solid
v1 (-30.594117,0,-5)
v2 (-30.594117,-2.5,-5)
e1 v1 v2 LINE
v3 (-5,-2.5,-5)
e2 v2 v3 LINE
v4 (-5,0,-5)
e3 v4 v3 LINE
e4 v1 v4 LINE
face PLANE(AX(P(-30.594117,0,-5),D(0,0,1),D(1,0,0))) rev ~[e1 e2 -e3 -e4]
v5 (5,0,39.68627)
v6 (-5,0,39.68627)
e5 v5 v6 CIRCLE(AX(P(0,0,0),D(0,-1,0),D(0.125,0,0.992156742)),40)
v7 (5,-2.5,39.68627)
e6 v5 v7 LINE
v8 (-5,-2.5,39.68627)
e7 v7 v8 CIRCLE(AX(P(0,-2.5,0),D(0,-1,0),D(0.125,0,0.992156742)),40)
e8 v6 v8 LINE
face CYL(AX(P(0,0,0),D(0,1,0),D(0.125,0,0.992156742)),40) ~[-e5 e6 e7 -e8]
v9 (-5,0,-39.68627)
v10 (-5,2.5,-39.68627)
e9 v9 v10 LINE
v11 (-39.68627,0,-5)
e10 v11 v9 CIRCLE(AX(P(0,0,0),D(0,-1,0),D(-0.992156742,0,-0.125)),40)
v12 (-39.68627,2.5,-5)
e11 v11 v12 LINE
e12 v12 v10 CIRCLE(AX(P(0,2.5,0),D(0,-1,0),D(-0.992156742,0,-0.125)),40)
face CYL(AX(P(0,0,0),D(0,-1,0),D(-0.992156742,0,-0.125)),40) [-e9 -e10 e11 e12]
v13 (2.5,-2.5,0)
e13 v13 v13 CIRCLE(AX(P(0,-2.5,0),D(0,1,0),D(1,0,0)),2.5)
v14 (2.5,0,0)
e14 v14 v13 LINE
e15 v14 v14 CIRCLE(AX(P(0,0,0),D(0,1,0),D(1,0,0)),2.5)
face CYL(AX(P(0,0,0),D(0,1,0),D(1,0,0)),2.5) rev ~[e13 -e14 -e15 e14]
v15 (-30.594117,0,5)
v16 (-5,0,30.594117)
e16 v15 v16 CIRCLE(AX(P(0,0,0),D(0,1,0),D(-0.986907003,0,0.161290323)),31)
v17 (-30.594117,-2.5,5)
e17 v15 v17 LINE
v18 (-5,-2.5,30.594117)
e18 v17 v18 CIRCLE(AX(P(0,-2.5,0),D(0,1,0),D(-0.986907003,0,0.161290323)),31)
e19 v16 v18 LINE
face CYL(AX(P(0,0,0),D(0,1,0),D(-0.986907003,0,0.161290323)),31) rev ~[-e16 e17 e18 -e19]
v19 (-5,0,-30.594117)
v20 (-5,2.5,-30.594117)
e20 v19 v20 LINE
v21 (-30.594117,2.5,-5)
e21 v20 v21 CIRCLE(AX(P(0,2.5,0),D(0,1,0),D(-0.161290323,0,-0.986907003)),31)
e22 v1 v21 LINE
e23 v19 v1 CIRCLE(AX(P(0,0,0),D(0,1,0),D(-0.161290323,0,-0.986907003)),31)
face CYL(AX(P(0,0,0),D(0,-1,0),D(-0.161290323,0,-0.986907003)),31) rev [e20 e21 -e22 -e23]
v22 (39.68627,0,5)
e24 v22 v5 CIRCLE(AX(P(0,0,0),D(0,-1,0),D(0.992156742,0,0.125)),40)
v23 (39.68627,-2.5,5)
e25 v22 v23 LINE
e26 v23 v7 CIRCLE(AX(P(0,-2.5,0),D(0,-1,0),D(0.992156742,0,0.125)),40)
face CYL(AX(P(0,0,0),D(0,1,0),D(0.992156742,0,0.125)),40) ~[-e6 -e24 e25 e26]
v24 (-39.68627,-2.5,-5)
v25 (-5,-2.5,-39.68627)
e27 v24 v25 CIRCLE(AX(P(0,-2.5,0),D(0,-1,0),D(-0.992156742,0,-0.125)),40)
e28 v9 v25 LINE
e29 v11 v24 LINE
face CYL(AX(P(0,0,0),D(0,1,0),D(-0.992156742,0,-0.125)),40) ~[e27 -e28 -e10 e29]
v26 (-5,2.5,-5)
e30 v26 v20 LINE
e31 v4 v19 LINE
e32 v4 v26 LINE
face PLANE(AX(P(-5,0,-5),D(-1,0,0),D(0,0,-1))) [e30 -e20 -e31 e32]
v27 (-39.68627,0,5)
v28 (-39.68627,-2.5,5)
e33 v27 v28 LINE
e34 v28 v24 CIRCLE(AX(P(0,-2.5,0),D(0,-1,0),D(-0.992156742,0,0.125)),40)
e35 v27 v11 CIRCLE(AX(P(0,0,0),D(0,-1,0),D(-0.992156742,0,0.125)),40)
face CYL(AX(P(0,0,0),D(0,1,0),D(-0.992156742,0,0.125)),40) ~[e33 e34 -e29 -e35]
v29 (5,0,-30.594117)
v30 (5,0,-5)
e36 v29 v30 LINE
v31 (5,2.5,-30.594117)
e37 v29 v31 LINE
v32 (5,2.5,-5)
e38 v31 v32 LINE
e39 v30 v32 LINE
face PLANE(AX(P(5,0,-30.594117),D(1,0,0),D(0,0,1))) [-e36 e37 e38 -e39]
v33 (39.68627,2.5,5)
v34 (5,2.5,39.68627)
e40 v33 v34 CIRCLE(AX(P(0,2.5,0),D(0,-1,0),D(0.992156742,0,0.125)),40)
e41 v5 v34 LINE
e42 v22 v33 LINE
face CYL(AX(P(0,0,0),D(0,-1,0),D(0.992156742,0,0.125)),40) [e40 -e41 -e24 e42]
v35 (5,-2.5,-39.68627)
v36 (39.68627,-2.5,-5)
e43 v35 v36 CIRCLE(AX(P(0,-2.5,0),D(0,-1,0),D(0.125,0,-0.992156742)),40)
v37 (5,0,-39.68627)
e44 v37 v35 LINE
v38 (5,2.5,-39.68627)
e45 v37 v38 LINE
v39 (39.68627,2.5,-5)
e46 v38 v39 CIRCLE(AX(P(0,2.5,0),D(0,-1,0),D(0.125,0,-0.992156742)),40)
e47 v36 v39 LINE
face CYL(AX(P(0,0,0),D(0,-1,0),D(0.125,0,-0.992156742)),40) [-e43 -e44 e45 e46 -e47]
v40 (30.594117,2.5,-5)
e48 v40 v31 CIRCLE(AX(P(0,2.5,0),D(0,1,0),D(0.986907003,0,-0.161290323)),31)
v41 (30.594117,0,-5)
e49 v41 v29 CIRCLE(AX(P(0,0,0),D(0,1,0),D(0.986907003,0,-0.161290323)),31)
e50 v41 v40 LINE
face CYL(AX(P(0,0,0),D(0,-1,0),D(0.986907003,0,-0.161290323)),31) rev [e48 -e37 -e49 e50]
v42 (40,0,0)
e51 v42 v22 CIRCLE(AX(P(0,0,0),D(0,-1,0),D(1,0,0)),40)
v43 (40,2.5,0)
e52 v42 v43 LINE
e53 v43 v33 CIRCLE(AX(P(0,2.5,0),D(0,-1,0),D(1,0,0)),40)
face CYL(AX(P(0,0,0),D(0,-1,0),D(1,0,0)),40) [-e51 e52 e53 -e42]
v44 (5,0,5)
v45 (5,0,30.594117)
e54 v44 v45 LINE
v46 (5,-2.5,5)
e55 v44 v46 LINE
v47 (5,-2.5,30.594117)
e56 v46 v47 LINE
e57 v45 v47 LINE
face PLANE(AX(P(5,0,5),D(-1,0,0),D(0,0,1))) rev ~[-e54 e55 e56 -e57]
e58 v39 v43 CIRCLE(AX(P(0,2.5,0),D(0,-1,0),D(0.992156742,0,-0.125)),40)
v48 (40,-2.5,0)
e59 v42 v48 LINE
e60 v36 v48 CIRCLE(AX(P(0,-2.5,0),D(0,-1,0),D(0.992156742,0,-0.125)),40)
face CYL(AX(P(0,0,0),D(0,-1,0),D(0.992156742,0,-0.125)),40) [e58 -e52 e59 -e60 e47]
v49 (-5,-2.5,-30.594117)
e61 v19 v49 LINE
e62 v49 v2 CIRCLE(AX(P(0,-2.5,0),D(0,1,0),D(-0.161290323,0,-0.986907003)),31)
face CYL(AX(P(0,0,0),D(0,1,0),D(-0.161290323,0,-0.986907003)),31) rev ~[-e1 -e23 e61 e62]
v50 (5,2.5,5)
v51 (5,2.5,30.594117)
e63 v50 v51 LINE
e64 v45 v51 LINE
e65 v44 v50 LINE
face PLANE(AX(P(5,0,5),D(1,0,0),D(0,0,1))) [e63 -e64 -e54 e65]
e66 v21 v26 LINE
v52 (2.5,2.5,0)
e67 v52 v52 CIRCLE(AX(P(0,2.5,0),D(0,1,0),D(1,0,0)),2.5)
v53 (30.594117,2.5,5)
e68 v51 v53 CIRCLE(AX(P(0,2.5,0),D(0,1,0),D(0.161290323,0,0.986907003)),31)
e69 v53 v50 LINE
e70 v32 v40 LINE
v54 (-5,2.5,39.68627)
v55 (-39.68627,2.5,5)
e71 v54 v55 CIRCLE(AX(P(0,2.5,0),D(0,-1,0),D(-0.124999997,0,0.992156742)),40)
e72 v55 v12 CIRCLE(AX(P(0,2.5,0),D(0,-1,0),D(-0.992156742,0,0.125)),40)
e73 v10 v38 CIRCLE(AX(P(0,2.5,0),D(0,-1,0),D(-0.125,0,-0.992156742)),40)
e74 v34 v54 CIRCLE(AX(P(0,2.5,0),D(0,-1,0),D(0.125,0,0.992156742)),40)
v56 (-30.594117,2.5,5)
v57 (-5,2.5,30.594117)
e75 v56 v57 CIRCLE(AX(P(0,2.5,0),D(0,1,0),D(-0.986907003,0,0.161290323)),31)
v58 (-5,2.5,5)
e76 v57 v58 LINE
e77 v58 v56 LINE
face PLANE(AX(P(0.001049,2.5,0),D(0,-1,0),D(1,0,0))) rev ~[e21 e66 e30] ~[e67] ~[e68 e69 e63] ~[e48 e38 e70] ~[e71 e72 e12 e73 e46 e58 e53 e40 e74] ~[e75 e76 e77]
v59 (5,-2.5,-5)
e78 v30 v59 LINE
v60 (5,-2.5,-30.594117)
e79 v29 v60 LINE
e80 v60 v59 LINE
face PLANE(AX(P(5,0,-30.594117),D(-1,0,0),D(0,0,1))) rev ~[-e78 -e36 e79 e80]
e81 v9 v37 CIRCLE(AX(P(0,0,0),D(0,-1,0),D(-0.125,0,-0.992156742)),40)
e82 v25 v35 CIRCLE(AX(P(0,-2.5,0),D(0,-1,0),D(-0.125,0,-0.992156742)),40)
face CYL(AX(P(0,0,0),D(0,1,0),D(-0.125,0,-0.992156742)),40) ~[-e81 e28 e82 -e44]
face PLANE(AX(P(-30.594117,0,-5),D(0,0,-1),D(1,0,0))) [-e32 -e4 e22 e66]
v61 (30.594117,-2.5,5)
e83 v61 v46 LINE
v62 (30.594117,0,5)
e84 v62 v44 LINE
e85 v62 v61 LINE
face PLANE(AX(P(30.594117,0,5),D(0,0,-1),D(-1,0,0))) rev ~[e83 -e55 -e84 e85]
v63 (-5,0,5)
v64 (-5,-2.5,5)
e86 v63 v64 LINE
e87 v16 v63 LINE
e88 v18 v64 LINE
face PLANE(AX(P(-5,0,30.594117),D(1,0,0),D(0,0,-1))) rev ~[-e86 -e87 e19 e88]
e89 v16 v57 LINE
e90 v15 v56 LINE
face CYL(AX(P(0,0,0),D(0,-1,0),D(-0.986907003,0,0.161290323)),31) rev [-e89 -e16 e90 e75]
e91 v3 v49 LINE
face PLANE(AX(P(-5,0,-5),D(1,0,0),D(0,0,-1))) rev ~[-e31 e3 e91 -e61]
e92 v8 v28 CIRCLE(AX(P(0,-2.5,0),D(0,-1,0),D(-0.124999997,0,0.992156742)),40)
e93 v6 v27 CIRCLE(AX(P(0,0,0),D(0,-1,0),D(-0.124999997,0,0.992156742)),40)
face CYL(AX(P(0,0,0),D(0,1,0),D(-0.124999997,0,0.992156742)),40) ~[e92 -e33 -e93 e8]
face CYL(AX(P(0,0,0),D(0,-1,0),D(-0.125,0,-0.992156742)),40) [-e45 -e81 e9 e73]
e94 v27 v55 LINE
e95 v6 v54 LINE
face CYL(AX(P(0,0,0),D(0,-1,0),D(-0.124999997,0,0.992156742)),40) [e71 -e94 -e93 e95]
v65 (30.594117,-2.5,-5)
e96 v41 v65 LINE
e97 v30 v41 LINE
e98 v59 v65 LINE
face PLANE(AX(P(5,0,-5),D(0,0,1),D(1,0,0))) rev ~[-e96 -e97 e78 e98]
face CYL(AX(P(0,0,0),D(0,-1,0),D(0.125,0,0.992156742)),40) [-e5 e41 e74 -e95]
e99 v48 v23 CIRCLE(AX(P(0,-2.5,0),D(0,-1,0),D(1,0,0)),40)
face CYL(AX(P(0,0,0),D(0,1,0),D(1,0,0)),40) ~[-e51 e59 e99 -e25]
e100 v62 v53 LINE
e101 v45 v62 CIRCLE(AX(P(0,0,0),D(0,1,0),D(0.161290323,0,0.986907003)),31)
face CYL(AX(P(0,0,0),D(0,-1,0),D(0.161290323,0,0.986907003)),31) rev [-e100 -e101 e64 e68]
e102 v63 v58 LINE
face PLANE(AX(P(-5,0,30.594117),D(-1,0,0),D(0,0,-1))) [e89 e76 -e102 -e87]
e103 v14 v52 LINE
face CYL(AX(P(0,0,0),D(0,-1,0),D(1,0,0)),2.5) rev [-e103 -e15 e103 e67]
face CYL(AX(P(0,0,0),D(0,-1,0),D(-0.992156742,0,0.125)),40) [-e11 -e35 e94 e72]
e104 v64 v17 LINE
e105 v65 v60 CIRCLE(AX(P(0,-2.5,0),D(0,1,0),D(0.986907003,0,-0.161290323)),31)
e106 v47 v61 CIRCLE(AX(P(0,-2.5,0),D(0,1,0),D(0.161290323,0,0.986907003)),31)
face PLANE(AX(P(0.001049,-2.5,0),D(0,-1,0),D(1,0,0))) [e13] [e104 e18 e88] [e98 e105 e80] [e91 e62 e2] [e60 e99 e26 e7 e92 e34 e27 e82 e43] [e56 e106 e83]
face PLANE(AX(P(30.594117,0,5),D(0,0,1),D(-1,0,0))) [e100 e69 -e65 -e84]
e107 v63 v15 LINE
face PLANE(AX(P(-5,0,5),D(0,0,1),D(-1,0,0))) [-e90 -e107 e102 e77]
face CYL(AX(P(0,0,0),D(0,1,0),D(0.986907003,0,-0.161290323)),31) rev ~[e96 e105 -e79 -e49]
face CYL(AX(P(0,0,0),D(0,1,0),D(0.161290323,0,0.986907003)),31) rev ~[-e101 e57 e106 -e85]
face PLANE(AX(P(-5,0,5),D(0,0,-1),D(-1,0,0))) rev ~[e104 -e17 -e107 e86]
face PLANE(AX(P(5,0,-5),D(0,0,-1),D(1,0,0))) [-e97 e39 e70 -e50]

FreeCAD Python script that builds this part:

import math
import FreeCAD as App
import Part
import Sketcher
from FreeCAD import Vector

doc = App.newDocument("Part")
body = doc.addObject("PartDesign::Body", "Body")

sketch1 = doc.addObject("Sketcher::SketchObject", "Sketch")
body.addObject(sketch1)
sketch1.AttachmentSupport = (doc.XZ_Plane, [""])
sketch1.MapMode = "FlatFace"
sketch1.addGeometry([
    Part.ArcOfCircle(Part.Circle(Vector(0, 0, 0), Vector(0, 0, 1), 40), math.radians(-7.18), math.radians(0)),
    Part.ArcOfCircle(Part.Circle(Vector(0, 0, 0), Vector(0, 0, 1), 40), math.radians(0), math.radians(7.18)),
    Part.ArcOfCircle(Part.Circle(Vector(0, 0, 0), Vector(0, 0, 1), 40), math.radians(7), math.radians(83)),
    Part.ArcOfCircle(Part.Circle(Vector(0, 0, 0), Vector(0, 0, 1), 40), math.radians(82.82), math.radians(97.18)),
    Part.ArcOfCircle(Part.Circle(Vector(0, 0, 0), Vector(0, 0, 1), 40), math.radians(97), math.radians(173)),
    Part.ArcOfCircle(Part.Circle(Vector(0, 0, 0), Vector(0, 0, 1), 40), math.radians(172.82), math.radians(187.18)),
    Part.ArcOfCircle(Part.Circle(Vector(0, 0, 0), Vector(0, 0, 1), 40), math.radians(-173), math.radians(-97)),
    Part.ArcOfCircle(Part.Circle(Vector(0, 0, 0), Vector(0, 0, 1), 40), math.radians(-97.18), math.radians(-82.82)),
    Part.ArcOfCircle(Part.Circle(Vector(0, 0, 0), Vector(0, 0, 1), 40), math.radians(-83), math.radians(-7)),
    Part.ArcOfCircle(Part.Circle(Vector(0, 0, 0), Vector(0, 0, 1), 31), math.radians(-171), math.radians(-99)),
    Part.LineSegment(Vector(-30.6, -5, 0), Vector(-5, -5, 0)),
    Part.LineSegment(Vector(-5, -5, 0), Vector(-5, -30.6, 0)),
    Part.LineSegment(Vector(5, -30.6, 0), Vector(5, -5, 0)),
    Part.LineSegment(Vector(5, -5, 0), Vector(30.6, -5, 0)),
    Part.ArcOfCircle(Part.Circle(Vector(0, 0, 0), Vector(0, 0, 1), 31), math.radians(-81), math.radians(-9)),
    Part.Circle(Vector(0, 0, 0), Vector(0, 0, 1), 2.5),
    Part.LineSegment(Vector(-5, 5, 0), Vector(-30.6, 5, 0)),
    Part.ArcOfCircle(Part.Circle(Vector(0, 0, 0), Vector(0, 0, 1), 31), math.radians(99), math.radians(171)),
    Part.LineSegment(Vector(-5, 30.6, 0), Vector(-5, 5, 0)),
    Part.LineSegment(Vector(30.6, 5, 0), Vector(5, 5, 0)),
    Part.LineSegment(Vector(5, 5, 0), Vector(5, 30.6, 0)),
    Part.ArcOfCircle(Part.Circle(Vector(0, 0, 0), Vector(0, 0, 1), 31), math.radians(9), math.radians(81)),
], False)
sketch1.addConstraint([
    Sketcher.Constraint("Tangent", 0, 2, 1, 1),
    Sketcher.Constraint("Tangent", 1, 2, 2, 1),
    Sketcher.Constraint("Tangent", 2, 2, 3, 1),
    Sketcher.Constraint("Tangent", 3, 2, 4, 1),
    Sketcher.Constraint("Tangent", 4, 2, 5, 1),
    Sketcher.Constraint("Tangent", 5, 2, 6, 1),
    Sketcher.Constraint("Tangent", 6, 2, 7, 1),
    Sketcher.Constraint("Tangent", 7, 2, 8, 1),
    Sketcher.Constraint("Tangent", 8, 2, 0, 1),
    Sketcher.Constraint("Coincident", 9, 1, 10, 1),
    Sketcher.Constraint("Coincident", 10, 2, 11, 1),
    Sketcher.Constraint("Coincident", 11, 2, 9, 2),
    Sketcher.Constraint("Coincident", 12, 2, 13, 1),
    Sketcher.Constraint("Coincident", 13, 2, 14, 2),
    Sketcher.Constraint("Coincident", 14, 1, 12, 1),
    Sketcher.Constraint("Coincident", 16, 2, 17, 2),
    Sketcher.Constraint("Coincident", 17, 1, 18, 1),
    Sketcher.Constraint("Coincident", 18, 2, 16, 1),
    Sketcher.Constraint("Coincident", 19, 2, 20, 1),
    Sketcher.Constraint("Coincident", 20, 2, 21, 2),
    Sketcher.Constraint("Coincident", 21, 1, 19, 1),
    Sketcher.Constraint("Horizontal", 10),
    Sketcher.Constraint("Vertical", 11),
    Sketcher.Constraint("Vertical", 12),
    Sketcher.Constraint("Horizontal", 13),
    Sketcher.Constraint("Horizontal", 16),
    Sketcher.Constraint("Vertical", 18),
    Sketcher.Constraint("Horizontal", 19),
    Sketcher.Constraint("Vertical", 20),
    Sketcher.Constraint("Coincident", 0, 3, -1, 1),
    Sketcher.Constraint("Coincident", 2, 3, -1, 1),
    Sketcher.Constraint("Coincident", 4, 3, -1, 1),
    Sketcher.Constraint("Coincident", 6, 3, -1, 1),
    Sketcher.Constraint("Coincident", 9, 3, -1, 1),
    Sketcher.Constraint("Coincident", 14, 3, -1, 1),
    Sketcher.Constraint("Coincident", 15, 3, -1, 1),
    Sketcher.Constraint("Coincident", 17, 3, -1, 1),
    Sketcher.Constraint("Coincident", 21, 3, -1, 1),
    Sketcher.Constraint("Equal", 9, 14),
    Sketcher.Constraint("Equal", 14, 17),
    Sketcher.Constraint("Equal", 17, 21),
    Sketcher.Constraint("Symmetric", 12, 2, 18, 2, -1, 1),
    Sketcher.Constraint("Symmetric", 10, 2, 19, 2, -1, 1),
    Sketcher.Constraint("Symmetric", 10, 2, 12, 2, -2),
    Sketcher.Constraint("PointOnObject", 0, 2, -1),
    Sketcher.Constraint("Horizontal", 2, 2, 3, 2),
    Sketcher.Constraint("Horizontal", 1, 2, 4, 2),
    Sketcher.Constraint("Horizontal", 6, 2, 7, 2),
    Sketcher.Constraint("Horizontal", 5, 2, 8, 2),
    Sketcher.Constraint("Horizontal", 8, 2, 9, 1),
    Sketcher.Constraint("Horizontal", 4, 2, 16, 2),
    Sketcher.Constraint("Vertical", 3, 2, 6, 2),
    Sketcher.Constraint("Vertical", 6, 2, 10, 2),
    Sketcher.Constraint("Equal", 19, 11),
    Sketcher.Constraint("Diameter", 15, 5.0),
    Sketcher.Constraint("Radius", 0, 40.0),
    Sketcher.Constraint("Radius", 9, 31.0),
    Sketcher.Constraint("DistanceY", -1, 1, 1, 2, 5.0),
])
pad1 = doc.addObject("PartDesign::Pad", "Pad")
body.addObject(pad1)
pad1.Profile = sketch1
pad1.Length = 5
pad1.Midplane = True

doc.recompute()
